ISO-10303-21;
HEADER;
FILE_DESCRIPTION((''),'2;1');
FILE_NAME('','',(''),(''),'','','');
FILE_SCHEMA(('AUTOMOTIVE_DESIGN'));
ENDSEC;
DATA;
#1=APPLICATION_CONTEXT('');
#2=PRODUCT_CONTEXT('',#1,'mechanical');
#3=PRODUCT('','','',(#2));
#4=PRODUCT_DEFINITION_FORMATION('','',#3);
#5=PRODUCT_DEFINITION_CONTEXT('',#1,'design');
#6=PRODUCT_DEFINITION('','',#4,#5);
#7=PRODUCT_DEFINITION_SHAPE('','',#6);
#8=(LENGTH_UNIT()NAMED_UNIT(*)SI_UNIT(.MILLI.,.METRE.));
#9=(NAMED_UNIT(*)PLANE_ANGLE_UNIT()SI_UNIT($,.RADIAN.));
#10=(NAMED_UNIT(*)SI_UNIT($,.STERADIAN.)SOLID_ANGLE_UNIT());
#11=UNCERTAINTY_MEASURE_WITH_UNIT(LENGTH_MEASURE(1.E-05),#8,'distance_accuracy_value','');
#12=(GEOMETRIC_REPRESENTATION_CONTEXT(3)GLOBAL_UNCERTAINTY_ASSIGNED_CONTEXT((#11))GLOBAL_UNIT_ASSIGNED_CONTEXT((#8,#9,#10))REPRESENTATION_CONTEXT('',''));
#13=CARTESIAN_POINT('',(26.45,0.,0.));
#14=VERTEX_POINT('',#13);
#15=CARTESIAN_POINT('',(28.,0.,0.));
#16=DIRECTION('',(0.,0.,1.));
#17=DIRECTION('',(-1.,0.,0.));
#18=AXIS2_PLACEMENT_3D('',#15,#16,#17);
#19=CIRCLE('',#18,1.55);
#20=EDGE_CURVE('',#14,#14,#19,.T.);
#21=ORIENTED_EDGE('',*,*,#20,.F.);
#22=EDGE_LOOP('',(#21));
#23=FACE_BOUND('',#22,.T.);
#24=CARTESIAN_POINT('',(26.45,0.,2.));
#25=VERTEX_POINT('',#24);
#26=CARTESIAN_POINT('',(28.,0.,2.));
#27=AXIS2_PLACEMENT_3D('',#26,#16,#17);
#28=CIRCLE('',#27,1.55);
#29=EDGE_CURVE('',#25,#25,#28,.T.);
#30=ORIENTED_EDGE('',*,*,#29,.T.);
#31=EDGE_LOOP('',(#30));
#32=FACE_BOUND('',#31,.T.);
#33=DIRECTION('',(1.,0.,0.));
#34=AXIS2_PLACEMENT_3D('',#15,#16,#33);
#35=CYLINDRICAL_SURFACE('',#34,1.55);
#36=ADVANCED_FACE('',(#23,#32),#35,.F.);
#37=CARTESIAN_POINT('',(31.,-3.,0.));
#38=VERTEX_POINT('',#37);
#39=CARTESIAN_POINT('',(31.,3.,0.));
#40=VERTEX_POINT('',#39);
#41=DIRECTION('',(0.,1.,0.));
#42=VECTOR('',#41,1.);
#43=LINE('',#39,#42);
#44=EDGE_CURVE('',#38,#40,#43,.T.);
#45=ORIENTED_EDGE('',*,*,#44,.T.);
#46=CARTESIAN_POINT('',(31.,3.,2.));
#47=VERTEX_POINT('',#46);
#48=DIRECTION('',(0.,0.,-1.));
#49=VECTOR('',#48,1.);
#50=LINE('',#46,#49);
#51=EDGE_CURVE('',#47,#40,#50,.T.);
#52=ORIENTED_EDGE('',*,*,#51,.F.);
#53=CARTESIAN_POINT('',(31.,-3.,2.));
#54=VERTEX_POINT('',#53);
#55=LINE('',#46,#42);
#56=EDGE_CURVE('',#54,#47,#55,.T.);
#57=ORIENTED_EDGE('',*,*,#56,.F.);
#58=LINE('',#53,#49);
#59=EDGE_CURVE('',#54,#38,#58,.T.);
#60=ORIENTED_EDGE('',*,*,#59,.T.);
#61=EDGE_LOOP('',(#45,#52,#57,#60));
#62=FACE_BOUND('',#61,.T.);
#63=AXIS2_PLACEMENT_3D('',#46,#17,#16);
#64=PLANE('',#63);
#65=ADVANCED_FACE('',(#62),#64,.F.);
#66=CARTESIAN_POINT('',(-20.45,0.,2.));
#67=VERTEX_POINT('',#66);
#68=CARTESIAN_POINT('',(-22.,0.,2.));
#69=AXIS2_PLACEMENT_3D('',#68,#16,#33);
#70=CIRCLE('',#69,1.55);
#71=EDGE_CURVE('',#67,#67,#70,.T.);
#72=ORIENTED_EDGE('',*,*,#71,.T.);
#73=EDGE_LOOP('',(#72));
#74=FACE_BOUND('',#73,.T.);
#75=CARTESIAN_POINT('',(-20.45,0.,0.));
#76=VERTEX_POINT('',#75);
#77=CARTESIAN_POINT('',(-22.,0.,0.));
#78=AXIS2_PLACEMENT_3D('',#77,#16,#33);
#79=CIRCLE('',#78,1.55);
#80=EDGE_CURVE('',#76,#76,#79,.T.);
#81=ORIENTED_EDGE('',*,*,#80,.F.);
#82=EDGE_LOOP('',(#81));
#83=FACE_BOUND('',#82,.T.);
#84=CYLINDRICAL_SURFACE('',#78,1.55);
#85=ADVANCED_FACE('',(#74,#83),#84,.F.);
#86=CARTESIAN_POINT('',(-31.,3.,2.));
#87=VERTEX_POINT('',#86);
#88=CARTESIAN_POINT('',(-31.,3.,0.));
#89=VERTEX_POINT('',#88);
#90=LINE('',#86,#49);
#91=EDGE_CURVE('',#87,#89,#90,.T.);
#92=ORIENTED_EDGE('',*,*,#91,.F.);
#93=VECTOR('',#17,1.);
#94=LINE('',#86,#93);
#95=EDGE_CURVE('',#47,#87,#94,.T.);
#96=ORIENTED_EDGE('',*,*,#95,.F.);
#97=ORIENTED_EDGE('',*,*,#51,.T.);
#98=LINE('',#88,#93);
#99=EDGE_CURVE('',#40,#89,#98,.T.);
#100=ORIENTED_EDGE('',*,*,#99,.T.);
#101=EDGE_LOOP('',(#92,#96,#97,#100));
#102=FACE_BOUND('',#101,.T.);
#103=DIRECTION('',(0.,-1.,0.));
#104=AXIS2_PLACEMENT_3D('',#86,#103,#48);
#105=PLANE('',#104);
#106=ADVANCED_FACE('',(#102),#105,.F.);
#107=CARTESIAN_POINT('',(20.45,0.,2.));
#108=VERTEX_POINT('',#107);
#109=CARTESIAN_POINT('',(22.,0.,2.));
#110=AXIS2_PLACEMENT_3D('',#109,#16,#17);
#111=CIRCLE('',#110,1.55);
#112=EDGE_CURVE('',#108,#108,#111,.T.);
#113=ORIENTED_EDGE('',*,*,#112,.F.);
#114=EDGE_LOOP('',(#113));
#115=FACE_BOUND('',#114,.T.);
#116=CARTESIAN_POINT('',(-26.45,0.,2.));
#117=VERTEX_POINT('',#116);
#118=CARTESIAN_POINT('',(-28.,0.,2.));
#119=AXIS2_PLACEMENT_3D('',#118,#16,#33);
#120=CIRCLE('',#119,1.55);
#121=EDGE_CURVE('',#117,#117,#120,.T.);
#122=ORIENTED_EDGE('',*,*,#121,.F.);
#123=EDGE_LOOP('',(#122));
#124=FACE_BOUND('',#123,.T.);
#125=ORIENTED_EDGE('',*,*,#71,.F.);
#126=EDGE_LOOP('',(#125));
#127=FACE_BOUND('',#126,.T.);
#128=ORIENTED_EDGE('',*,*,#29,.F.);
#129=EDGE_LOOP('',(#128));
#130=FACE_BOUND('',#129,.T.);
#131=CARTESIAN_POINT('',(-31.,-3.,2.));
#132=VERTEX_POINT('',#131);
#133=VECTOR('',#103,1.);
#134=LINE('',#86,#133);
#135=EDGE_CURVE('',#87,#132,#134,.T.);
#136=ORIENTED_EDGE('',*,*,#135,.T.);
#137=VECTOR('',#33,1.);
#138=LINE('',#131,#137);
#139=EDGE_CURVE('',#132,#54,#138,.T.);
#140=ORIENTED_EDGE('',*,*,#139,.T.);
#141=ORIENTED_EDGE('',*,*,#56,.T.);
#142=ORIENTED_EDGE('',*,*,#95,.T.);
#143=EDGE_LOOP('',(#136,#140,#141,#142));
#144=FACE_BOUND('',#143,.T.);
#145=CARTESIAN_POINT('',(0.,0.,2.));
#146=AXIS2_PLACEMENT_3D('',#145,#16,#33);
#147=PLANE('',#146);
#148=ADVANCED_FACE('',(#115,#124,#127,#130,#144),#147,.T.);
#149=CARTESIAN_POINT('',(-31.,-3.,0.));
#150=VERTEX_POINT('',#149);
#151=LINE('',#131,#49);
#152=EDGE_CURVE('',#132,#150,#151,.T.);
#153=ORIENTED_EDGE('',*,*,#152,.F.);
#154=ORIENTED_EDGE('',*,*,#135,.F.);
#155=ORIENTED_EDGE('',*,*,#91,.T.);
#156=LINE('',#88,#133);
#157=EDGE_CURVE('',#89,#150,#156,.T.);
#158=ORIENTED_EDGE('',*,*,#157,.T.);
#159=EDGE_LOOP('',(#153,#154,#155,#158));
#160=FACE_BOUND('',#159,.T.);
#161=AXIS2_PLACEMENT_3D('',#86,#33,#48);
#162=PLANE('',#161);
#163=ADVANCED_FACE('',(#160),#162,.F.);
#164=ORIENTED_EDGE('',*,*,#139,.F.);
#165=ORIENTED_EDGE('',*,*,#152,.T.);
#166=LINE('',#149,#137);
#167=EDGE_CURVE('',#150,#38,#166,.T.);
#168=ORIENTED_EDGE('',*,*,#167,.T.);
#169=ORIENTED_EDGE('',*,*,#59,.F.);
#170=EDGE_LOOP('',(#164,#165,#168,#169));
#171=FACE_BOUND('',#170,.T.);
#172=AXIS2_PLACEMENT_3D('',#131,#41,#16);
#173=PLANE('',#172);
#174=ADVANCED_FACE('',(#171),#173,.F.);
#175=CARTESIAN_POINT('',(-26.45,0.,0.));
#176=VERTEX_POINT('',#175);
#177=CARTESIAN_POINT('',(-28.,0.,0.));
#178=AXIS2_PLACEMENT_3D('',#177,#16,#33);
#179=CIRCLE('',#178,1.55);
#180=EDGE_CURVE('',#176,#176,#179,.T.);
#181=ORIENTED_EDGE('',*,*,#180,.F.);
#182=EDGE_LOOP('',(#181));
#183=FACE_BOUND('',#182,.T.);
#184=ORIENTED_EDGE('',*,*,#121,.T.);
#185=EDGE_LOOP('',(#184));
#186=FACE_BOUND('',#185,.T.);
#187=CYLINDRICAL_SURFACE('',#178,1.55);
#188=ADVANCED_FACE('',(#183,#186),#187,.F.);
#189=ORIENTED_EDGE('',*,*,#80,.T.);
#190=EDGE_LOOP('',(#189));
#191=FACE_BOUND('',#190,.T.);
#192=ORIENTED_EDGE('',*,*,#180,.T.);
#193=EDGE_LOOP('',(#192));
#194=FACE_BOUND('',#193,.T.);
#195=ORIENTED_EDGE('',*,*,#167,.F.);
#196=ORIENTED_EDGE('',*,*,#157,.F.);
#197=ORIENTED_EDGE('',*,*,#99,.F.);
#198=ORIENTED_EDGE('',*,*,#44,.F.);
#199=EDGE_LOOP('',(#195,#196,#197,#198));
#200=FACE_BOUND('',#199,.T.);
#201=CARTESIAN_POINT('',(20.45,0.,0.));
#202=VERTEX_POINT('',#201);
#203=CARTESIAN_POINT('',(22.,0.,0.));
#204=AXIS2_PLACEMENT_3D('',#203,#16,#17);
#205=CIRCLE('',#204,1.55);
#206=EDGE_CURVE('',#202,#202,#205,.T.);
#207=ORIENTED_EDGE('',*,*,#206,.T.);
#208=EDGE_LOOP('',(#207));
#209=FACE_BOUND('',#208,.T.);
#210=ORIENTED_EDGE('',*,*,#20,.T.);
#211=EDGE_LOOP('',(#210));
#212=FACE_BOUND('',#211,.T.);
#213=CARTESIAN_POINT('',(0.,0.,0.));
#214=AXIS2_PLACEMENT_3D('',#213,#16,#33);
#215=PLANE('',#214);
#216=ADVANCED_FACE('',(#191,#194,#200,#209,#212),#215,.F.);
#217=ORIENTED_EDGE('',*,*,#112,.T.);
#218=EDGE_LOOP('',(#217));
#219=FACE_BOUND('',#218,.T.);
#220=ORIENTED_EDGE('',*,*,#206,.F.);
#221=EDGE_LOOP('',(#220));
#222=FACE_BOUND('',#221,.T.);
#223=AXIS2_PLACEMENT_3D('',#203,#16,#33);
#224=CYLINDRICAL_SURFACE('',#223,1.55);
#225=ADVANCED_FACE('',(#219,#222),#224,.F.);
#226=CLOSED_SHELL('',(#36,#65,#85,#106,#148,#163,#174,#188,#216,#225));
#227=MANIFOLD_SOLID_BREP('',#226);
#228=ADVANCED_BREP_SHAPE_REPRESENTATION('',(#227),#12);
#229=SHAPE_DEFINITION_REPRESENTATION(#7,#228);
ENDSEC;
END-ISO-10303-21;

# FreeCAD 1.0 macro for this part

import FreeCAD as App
import Part
import Sketcher
from FreeCAD import Vector
Q = App.Units.Quantity

doc = App.newDocument("Part")
body = doc.addObject("PartDesign::Body", "Body")

# Sketch on XY plane
sketch1 = body.newObject("Sketcher::SketchObject", "Sketch")
sketch1.AttachmentSupport = (doc.getObject("XY_Plane"), [""])
sketch1.MapMode = "FlatFace"
sketch1.addGeometry(Part.LineSegment(Vector(-31, 3, 0), Vector(-31, -3, 0)), False)
sketch1.addGeometry(Part.LineSegment(Vector(-31, -3, 0), Vector(31, -3, 0)), False)
sketch1.addGeometry(Part.LineSegment(Vector(31, -3, 0), Vector(31, 3, 0)), False)
sketch1.addGeometry(Part.LineSegment(Vector(31, 3, 0), Vector(-31, 3, 0)), False)
sketch1.addConstraint(Sketcher.Constraint("Coincident", 0, 2, 1, 1))
sketch1.addConstraint(Sketcher.Constraint("Coincident", 1, 2, 2, 1))
sketch1.addConstraint(Sketcher.Constraint("Coincident", 2, 2, 3, 1))
sketch1.addConstraint(Sketcher.Constraint("Coincident", 3, 2, 0, 1))
sketch1.addConstraint(Sketcher.Constraint("Vertical", 0))
sketch1.addConstraint(Sketcher.Constraint("Horizontal", 1))
sketch1.addConstraint(Sketcher.Constraint("Vertical", 2))
sketch1.addConstraint(Sketcher.Constraint("Horizontal", 3))
sketch1.addConstraint(Sketcher.Constraint("Symmetric", 0, 2, 2, 2, -1, 1))
sketch1.addConstraint(Sketcher.Constraint("DistanceX", 1, 1, 1, 2, Q("62 mm")))
sketch1.addConstraint(Sketcher.Constraint("DistanceY", 0, 2, 0, 1, Q("6 mm")))
pad1 = body.newObject("PartDesign::Pad", "Pad")
pad1.Profile = sketch1
pad1.Length = 2

# Sketch on XY plane
sketch2 = body.newObject("Sketcher::SketchObject", "Sketch001")
sketch2.AttachmentSupport = (doc.getObject("XY_Plane"), [""])
sketch2.MapMode = "FlatFace"
sketch2.AttachmentOffset = App.Placement(Vector(0, 0, 2), App.Rotation())
sketch2.addGeometry(Part.Circle(Vector(-28, 0, 0), Vector(0, 0, 1), 1.6), False)
sketch2.addGeometry(Part.Circle(Vector(-22, 0, 0), Vector(0, 0, 1), 1.6), False)
sketch2.addGeometry(Part.Circle(Vector(22, 0, 0), Vector(0, 0, 1), 1.6), False)
sketch2.addGeometry(Part.Circle(Vector(28, 0, 0), Vector(0, 0, 1), 1.6), False)
sketch2.addConstraint(Sketcher.Constraint("Equal", 0, 1))
sketch2.addConstraint(Sketcher.Constraint("Equal", 1, 2))
sketch2.addConstraint(Sketcher.Constraint("Equal", 2, 3))
sketch2.addConstraint(Sketcher.Constraint("Symmetric", 1, 3, 2, 3, -1, 1))
sketch2.addConstraint(Sketcher.Constraint("Symmetric", 0, 3, 3, 3, -1, 1))
sketch2.addConstraint(Sketcher.Constraint("PointOnObject", 0, 3, -1))
sketch2.addConstraint(Sketcher.Constraint("PointOnObject", 1, 3, -1))
sketch2.addConstraint(Sketcher.Constraint("Diameter", 0, Q("3.1 mm")))
sketch2.addConstraint(Sketcher.Constraint("DistanceX", 0, 3, -1, 1, Q("28 mm")))
sketch2.addConstraint(Sketcher.Constraint("DistanceX", 1, 3, -1, 1, Q("22 mm")))
pocket1 = body.newObject("PartDesign::Pocket", "Pocket")
pocket1.Profile = sketch2
pocket1.Length = 2

doc.recompute()
